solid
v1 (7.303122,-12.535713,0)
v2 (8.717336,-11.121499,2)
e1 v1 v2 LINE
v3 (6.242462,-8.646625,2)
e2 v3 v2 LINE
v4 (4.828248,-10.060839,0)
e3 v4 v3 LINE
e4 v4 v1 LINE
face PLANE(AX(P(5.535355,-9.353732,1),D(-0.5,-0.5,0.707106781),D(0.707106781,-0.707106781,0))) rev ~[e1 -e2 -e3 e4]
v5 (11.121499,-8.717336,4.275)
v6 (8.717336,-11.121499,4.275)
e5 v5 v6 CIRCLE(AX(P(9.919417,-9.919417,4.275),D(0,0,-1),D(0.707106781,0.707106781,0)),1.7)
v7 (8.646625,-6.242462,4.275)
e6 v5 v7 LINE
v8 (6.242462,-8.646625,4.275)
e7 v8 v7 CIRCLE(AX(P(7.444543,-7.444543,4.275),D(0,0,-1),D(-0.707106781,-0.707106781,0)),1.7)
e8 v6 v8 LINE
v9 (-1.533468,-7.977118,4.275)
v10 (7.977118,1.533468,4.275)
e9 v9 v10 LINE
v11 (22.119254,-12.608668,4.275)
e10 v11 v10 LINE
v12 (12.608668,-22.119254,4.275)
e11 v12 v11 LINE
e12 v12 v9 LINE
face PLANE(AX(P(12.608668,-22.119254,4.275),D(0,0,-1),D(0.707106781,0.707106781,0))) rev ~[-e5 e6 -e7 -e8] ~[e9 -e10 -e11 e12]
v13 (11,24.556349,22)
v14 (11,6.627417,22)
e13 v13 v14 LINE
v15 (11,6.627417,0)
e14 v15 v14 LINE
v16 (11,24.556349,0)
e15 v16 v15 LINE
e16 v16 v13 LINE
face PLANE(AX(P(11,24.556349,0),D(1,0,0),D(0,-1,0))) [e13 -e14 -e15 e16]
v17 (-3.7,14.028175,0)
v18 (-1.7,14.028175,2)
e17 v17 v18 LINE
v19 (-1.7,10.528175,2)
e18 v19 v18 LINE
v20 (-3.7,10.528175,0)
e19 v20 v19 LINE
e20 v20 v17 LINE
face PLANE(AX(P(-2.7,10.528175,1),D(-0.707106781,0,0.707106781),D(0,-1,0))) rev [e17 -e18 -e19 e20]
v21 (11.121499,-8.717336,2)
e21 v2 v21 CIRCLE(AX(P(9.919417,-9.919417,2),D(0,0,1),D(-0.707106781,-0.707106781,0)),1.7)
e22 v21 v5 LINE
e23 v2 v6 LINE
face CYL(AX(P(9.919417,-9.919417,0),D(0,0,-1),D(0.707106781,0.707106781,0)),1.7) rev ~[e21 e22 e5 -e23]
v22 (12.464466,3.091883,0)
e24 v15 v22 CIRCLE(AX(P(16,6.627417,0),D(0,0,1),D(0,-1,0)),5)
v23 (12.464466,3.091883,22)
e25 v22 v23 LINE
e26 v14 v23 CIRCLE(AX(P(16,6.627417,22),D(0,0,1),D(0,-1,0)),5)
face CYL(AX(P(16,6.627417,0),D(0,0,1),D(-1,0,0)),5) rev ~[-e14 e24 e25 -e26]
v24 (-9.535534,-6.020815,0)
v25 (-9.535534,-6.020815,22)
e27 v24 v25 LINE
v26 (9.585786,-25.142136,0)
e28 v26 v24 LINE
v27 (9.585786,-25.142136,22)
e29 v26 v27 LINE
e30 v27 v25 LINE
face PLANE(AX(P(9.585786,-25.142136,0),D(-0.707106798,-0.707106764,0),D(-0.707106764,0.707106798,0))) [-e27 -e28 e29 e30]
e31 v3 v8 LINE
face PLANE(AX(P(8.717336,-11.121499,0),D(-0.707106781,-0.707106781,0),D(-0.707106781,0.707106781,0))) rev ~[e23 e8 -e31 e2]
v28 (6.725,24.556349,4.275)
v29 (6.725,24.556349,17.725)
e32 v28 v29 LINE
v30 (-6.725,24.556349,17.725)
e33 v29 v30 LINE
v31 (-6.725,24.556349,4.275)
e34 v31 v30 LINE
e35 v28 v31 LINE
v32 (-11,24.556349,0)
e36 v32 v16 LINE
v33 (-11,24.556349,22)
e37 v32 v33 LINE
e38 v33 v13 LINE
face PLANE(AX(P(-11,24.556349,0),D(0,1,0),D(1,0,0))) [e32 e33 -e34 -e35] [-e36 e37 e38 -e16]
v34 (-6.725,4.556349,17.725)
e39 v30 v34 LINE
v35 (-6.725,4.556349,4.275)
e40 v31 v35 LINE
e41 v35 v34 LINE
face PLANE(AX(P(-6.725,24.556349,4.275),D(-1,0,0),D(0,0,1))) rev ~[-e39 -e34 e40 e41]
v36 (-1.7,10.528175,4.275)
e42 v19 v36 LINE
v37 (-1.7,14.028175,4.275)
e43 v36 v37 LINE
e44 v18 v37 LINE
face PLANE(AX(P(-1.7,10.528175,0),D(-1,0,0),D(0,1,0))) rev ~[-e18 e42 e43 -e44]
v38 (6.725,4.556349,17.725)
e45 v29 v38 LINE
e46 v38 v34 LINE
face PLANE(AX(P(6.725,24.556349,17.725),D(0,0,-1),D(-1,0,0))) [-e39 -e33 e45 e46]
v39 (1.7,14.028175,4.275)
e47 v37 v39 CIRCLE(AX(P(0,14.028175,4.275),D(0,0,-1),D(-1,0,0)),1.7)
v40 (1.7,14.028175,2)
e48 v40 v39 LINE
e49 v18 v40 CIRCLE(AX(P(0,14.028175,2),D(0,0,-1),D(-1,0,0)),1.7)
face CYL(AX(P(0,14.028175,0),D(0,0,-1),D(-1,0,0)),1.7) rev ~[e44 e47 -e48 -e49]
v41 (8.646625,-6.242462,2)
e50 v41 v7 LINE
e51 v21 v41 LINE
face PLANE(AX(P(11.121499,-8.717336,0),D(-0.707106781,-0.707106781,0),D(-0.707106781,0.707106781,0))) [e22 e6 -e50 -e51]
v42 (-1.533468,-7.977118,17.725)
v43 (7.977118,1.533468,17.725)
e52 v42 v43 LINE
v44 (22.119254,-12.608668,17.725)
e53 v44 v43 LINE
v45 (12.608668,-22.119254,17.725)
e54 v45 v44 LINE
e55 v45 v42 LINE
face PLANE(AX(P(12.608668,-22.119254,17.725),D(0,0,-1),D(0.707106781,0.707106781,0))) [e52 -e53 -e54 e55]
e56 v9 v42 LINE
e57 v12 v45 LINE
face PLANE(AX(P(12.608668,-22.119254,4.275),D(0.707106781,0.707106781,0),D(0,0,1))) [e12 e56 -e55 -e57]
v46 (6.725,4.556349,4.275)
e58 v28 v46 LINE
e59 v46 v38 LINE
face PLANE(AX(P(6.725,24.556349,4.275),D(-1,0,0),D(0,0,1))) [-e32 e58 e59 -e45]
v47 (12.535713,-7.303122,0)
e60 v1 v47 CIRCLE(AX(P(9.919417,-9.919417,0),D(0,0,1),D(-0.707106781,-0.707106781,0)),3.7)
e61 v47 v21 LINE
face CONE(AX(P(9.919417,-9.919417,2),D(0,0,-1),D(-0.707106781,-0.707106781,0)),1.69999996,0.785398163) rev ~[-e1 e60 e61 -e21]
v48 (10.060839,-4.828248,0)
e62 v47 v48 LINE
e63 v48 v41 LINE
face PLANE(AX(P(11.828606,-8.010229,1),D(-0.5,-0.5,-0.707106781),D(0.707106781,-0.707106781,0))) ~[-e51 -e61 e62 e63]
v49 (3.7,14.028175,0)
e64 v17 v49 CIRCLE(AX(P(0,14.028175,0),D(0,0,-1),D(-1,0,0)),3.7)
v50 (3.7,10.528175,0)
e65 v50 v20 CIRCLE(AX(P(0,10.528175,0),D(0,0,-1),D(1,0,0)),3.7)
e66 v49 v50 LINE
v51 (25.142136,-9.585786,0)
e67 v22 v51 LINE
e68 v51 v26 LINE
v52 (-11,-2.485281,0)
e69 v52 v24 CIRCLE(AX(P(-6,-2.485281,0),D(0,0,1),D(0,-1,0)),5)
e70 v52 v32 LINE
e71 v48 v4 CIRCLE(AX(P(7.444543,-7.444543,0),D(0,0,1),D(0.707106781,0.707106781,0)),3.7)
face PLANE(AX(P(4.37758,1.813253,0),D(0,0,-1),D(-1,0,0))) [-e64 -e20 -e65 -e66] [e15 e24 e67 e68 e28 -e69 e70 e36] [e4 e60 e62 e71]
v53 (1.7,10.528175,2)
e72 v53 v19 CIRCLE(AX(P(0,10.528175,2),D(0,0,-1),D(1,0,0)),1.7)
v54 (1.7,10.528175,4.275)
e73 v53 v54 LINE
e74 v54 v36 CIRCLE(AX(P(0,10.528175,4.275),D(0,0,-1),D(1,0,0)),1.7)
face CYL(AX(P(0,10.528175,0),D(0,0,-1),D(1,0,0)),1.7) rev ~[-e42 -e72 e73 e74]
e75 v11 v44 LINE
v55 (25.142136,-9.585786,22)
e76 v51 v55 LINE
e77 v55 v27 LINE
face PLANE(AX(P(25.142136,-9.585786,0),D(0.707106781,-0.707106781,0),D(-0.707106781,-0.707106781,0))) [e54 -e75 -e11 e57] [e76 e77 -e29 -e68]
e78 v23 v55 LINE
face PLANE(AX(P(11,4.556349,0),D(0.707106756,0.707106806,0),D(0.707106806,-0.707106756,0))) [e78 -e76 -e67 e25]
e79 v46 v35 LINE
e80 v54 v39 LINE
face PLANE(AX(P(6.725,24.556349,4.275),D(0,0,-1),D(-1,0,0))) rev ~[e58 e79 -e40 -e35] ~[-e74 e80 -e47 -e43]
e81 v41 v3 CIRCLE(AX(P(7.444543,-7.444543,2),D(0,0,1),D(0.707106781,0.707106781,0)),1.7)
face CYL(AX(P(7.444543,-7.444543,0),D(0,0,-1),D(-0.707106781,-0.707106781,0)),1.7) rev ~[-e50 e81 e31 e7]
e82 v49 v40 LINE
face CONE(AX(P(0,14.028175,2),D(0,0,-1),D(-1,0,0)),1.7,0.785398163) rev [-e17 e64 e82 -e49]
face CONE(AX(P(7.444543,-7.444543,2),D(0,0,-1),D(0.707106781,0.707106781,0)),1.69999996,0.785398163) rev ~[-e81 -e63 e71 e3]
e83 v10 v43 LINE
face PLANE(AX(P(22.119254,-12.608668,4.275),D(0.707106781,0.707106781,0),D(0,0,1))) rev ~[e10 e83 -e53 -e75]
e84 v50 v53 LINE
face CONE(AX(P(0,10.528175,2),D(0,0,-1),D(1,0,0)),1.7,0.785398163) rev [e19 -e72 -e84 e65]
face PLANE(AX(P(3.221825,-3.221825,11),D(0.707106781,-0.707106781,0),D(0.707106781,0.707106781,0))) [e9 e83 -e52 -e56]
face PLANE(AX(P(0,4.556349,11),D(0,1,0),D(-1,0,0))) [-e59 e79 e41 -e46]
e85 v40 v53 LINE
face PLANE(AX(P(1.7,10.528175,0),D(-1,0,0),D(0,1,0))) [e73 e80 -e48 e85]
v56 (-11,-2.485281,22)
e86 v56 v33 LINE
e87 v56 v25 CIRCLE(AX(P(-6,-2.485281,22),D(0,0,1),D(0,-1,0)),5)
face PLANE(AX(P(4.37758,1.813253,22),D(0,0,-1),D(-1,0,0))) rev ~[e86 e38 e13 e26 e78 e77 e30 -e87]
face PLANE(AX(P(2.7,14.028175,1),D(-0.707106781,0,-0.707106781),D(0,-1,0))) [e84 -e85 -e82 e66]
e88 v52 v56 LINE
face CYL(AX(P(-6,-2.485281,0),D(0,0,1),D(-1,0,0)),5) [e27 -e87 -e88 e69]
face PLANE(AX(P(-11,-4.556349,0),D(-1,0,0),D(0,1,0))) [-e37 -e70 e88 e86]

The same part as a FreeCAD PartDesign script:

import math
import FreeCAD as App
import Part
import Sketcher
from FreeCAD import Vector
Q = App.Units.Quantity


def edges_at(feature, points):
    """Names of the edges that pass closest to the given points."""
    edges = feature.Shape.Edges
    near = lambda p: min(range(len(edges)), key=lambda i: edges[i].distToShape(Part.Vertex(*p))[0])
    return sorted({f"Edge{near(p) + 1}" for p in points})

doc = App.newDocument("Part")
body = doc.addObject("PartDesign::Body", "Body")

sketch1 = body.newObject("Sketcher::SketchObject", "Sketch")
sketch1.AttachmentSupport = (doc.getObject("XY_Plane"), [""])
sketch1.MapMode = "FlatFace"
sketch1.addGeometry([
    Part.LineSegment(Vector(11, 24.556349, 0), Vector(-11, 24.556349, 0)),
    Part.LineSegment(Vector(-11, 24.556349, 0), Vector(-11, -4.556349, 0)),
    Part.LineSegment(Vector(-11, -4.556349, 0), Vector(9.585786, -25.142136, 0)),
    Part.LineSegment(Vector(9.585786, -25.142136, 0), Vector(25.142136, -9.585786, 0)),
    Part.LineSegment(Vector(25.142136, -9.585786, 0), Vector(11, 4.556349, 0)),
    Part.LineSegment(Vector(11, 4.556349, 0), Vector(11, 24.556349, 0)),
], False)
sketch1.addConstraint([
    Sketcher.Constraint("Coincident", 0, 2, 1, 1),
    Sketcher.Constraint("Coincident", 1, 2, 2, 1),
    Sketcher.Constraint("Coincident", 2, 2, 3, 1),
    Sketcher.Constraint("Coincident", 3, 2, 4, 1),
    Sketcher.Constraint("Coincident", 4, 2, 5, 1),
    Sketcher.Constraint("Coincident", 5, 2, 0, 1),
    Sketcher.Constraint("Horizontal", 0),
    Sketcher.Constraint("Vertical", 1),
    Sketcher.Constraint("Vertical", 5),
    Sketcher.Constraint("Symmetric", 1, 2, 4, 2, -1, 1),
    Sketcher.Constraint("Perpendicular", 2, 3),
    Sketcher.Constraint("Perpendicular", 3, 4),
    Sketcher.Constraint("DistanceX", 0, 2, 0, 1, 22.0),
    Sketcher.Constraint("DistanceY", 5, 1, 5, 2, 20.0),
    Sketcher.Constraint("Angle", 2, Q("-45.000001 deg")),
    Sketcher.Constraint("Distance", 3, 22.000001),
    Sketcher.Constraint("Distance", 4, 20.0),
])
pad1 = body.newObject("PartDesign::Pad", "Pad")
pad1.Profile = sketch1
pad1.Length = 22

sketch2 = body.newObject("Sketcher::SketchObject", "Sketch001")
sketch2.Placement = App.Placement(Vector(17.363961, -17.363961, 0), App.Rotation(Vector(0.707106781, 0.707106781, 0), Vector(0, 0, 0.999999999), Vector(0.707106781, -0.707106781, 0), "ZXY"))
sketch2.addGeometry([
    Part.LineSegment(Vector(-6.725, 17.725, 0), Vector(-6.725, 4.275, 0)),
    Part.LineSegment(Vector(-6.725, 4.275, 0), Vector(6.725, 4.275, 0)),
    Part.LineSegment(Vector(6.725, 4.275, 0), Vector(6.725, 17.725, 0)),
    Part.LineSegment(Vector(6.725, 17.725, 0), Vector(-6.725, 17.725, 0)),
], False)
sketch2.addConstraint([
    Sketcher.Constraint("Coincident", 0, 2, 1, 1),
    Sketcher.Constraint("Coincident", 1, 2, 2, 1),
    Sketcher.Constraint("Coincident", 2, 2, 3, 1),
    Sketcher.Constraint("Coincident", 3, 2, 0, 1),
    Sketcher.Constraint("Vertical", 0),
    Sketcher.Constraint("Horizontal", 1),
    Sketcher.Constraint("Vertical", 2),
    Sketcher.Constraint("Horizontal", 3),
    Sketcher.Constraint("Equal", 3, 0),
    Sketcher.Constraint("DistanceX", 1, 1, 1, 2, 13.45),
    Sketcher.Constraint("DistanceX", 0, 2, -1, 1, 6.725),
    Sketcher.Constraint("DistanceY", -1, 1, 0, 2, 4.275),
])
pocket1 = body.newObject("PartDesign::Pocket", "Pocket")
pocket1.Profile = sketch2
pocket1.Length = 20

sketch3 = body.newObject("Sketcher::SketchObject", "Sketch002")
sketch3.AttachmentSupport = (doc.getObject("XZ_Plane"), [""])
sketch3.MapMode = "FlatFace"
sketch3.AttachmentOffset = App.Placement(Vector(0, 0, -24.556349), App.Rotation())
sketch3.addGeometry([
    Part.LineSegment(Vector(6.725, 17.725, 0), Vector(6.725, 4.275, 0)),
    Part.LineSegment(Vector(6.725, 4.275, 0), Vector(-6.725, 4.275, 0)),
    Part.LineSegment(Vector(-6.725, 4.275, 0), Vector(-6.725, 17.725, 0)),
    Part.LineSegment(Vector(-6.725, 17.725, 0), Vector(6.725, 17.725, 0)),
], False)
sketch3.addConstraint([
    Sketcher.Constraint("Coincident", 0, 2, 1, 1),
    Sketcher.Constraint("Coincident", 1, 2, 2, 1),
    Sketcher.Constraint("Coincident", 2, 2, 3, 1),
    Sketcher.Constraint("Coincident", 3, 2, 0, 1),
    Sketcher.Constraint("Vertical", 0),
    Sketcher.Constraint("Horizontal", 1),
    Sketcher.Constraint("Vertical", 2),
    Sketcher.Constraint("Horizontal", 3),
    Sketcher.Constraint("Equal", 3, 0),
    Sketcher.Constraint("DistanceX", 1, 2, 1, 1, 13.45),
    Sketcher.Constraint("DistanceX", -1, 1, 0, 2, 6.725),
    Sketcher.Constraint("DistanceY", -1, 1, 0, 2, 4.275),
])
pocket2 = body.newObject("PartDesign::Pocket", "Pocket001")
pocket2.Profile = sketch3
pocket2.Length = 20
pocket2.Reversed = True

sketch4 = body.newObject("Sketcher::SketchObject", "Sketch003")
sketch4.AttachmentSupport = (doc.getObject("XY_Plane"), [""])
sketch4.MapMode = "FlatFace"
sketch4.addGeometry([
    Part.ArcOfCircle(Part.Circle(Vector(0, 10.528175, 0), Vector(0, 0, 1), 1.7), math.radians(180), math.radians(360)),
    Part.LineSegment(Vector(-1.7, 10.528175, 0), Vector(-1.7, 14.028175, 0)),
    Part.ArcOfCircle(Part.Circle(Vector(0, 14.028175, 0), Vector(0, 0, 1), 1.7), math.radians(0), math.radians(180)),
    Part.LineSegment(Vector(1.7, 14.028175, 0), Vector(1.7, 10.528175, 0)),
    Part.LineSegment(Vector(8.717336, -11.121499, 0), Vector(6.242462, -8.646625, 0)),
    Part.ArcOfCircle(Part.Circle(Vector(7.444543, -7.444543, 0), Vector(0, 0, 1), 1.7), math.radians(45), math.radians(225)),
    Part.LineSegment(Vector(8.646625, -6.242462, 0), Vector(11.121499, -8.717336, 0)),
    Part.ArcOfCircle(Part.Circle(Vector(9.919417, -9.919417, 0), Vector(0, 0, 1), 1.7), math.radians(-135), math.radians(45)),
], False)
sketch4.addConstraint([
    Sketcher.Constraint("Tangent", 0, 1, 1, 1),
    Sketcher.Constraint("Tangent", 1, 2, 2, 2),
    Sketcher.Constraint("Tangent", 2, 1, 3, 1),
    Sketcher.Constraint("Tangent", 3, 2, 0, 2),
    Sketcher.Constraint("Tangent", 4, 2, 5, 2),
    Sketcher.Constraint("Tangent", 5, 1, 6, 1),
    Sketcher.Constraint("Tangent", 6, 2, 7, 2),
    Sketcher.Constraint("Tangent", 7, 1, 4, 1),
    Sketcher.Constraint("Vertical", 1),
    Sketcher.Constraint("Vertical", 3),
    Sketcher.Constraint("Equal", 2, 5),
    Sketcher.Constraint("Equal", 5, 7),
    Sketcher.Constraint("PointOnObject", 0, 3, -2),
    Sketcher.Constraint("Radius", 0, 1.7),
    Sketcher.Constraint("Angle", 4, Q("135 deg")),
    Sketcher.Constraint("DistanceY", 1, 1, 1, 2, 3.5),
    Sketcher.Constraint("Distance", 4, 3.5),
    Sketcher.Constraint("DistanceX", -1, 1, 6, 2, 11.121499),
    Sketcher.Constraint("DistanceY", 7, 1, -1, 1, 11.121499),
    Sketcher.Constraint("DistanceY", 4, 2, 3, 2, 19.1748),
])
pocket3 = body.newObject("PartDesign::Pocket", "Pocket002")
pocket3.Profile = sketch4
pocket3.Length = 5
pocket3.Reversed = True
doc.recompute()

chamfer = body.newObject("PartDesign::Chamfer", "Chamfer")
chamfer.Base = (pocket3, edges_at(pocket3, [
    (9.884, -7.48, 0),
    (11.121, -11.121, 0),
    (7.48, -9.884, 0),
    (6.242, -6.242, 0),
    (0, 8.828, 0),
    (1.7, 12.278, 0),
    (0, 15.728, 0),
    (-1.7, 12.278, 0),
]))
chamfer.Size = 2
doc.recompute()

fillet = body.newObject("PartDesign::Fillet", "Fillet")
fillet.Base = (chamfer, edges_at(chamfer, [(-11, -4.556, 11), (11, 4.556, 11)]))
fillet.Radius = 5

doc.recompute()
